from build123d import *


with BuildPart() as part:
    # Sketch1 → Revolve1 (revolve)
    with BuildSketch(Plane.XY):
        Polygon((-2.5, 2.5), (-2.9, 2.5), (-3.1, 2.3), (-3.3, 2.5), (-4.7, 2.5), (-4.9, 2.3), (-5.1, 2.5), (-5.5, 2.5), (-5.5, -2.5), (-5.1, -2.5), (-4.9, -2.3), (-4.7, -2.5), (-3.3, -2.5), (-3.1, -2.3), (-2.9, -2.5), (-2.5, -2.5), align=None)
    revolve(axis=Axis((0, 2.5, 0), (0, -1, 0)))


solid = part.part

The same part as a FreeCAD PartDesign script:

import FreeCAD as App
import Part
import Sketcher
Q = App.Units.Quantity

doc = App.newDocument("Part")
body = doc.addObject("PartDesign::Body", "Body")

# Sketch on XY plane
sketch1 = doc.addObject("Sketcher::SketchObject", "Sketch")
body.addObject(sketch1)
sketch1.AttachmentSupport = (doc.XY_Plane, [""])
sketch1.MapMode = "FlatFace"
sketch1.addGeometry(Part.LineSegment(App.Vector(-2.5, 2.5, 0), App.Vector(-2.9, 2.5, 0)), False)
sketch1.addGeometry(Part.LineSegment(App.Vector(-2.9, 2.5, 0), App.Vector(-3.1, 2.3, 0)), False)
sketch1.addGeometry(Part.LineSegment(App.Vector(-3.1, 2.3, 0), App.Vector(-3.3, 2.5, 0)), False)
sketch1.addGeometry(Part.LineSegment(App.Vector(-3.3, 2.5, 0), App.Vector(-4.7, 2.5, 0)), False)
sketch1.addGeometry(Part.LineSegment(App.Vector(-4.7, 2.5, 0), App.Vector(-4.9, 2.3, 0)), False)
sketch1.addGeometry(Part.LineSegment(App.Vector(-4.9, 2.3, 0), App.Vector(-5.1, 2.5, 0)), False)
sketch1.addGeometry(Part.LineSegment(App.Vector(-5.1, 2.5, 0), App.Vector(-5.5, 2.5, 0)), False)
sketch1.addGeometry(Part.LineSegment(App.Vector(-5.5, 2.5, 0), App.Vector(-5.5, -2.5, 0)), False)
sketch1.addGeometry(Part.LineSegment(App.Vector(-5.5, -2.5, 0), App.Vector(-5.1, -2.5, 0)), False)
sketch1.addGeometry(Part.LineSegment(App.Vector(-5.1, -2.5, 0), App.Vector(-4.9, -2.3, 0)), False)
sketch1.addGeometry(Part.LineSegment(App.Vector(-4.9, -2.3, 0), App.Vector(-4.7, -2.5, 0)), False)
sketch1.addGeometry(Part.LineSegment(App.Vector(-4.7, -2.5, 0), App.Vector(-3.3, -2.5, 0)), False)
sketch1.addGeometry(Part.LineSegment(App.Vector(-3.3, -2.5, 0), App.Vector(-3.1, -2.3, 0)), False)
sketch1.addGeometry(Part.LineSegment(App.Vector(-3.1, -2.3, 0), App.Vector(-2.9, -2.5, 0)), False)
sketch1.addGeometry(Part.LineSegment(App.Vector(-2.9, -2.5, 0), App.Vector(-2.5, -2.5, 0)), False)
sketch1.addGeometry(Part.LineSegment(App.Vector(-2.5, -2.5, 0), App.Vector(-2.5, 2.5, 0)), False)
sketch1.addConstraint(Sketcher.Constraint("Coincident", 0, 2, 1, 1))
sketch1.addConstraint(Sketcher.Constraint("Coincident", 1, 2, 2, 1))
sketch1.addConstraint(Sketcher.Constraint("Coincident", 2, 2, 3, 1))
sketch1.addConstraint(Sketcher.Constraint("Coincident", 3, 2, 4, 1))
sketch1.addConstraint(Sketcher.Constraint("Coincident", 4, 2, 5, 1))
sketch1.addConstraint(Sketcher.Constraint("Coincident", 5, 2, 6, 1))
sketch1.addConstraint(Sketcher.Constraint("Coincident", 6, 2, 7, 1))
sketch1.addConstraint(Sketcher.Constraint("Coincident", 7, 2, 8, 1))
sketch1.addConstraint(Sketcher.Constraint("Coincident", 8, 2, 9, 1))
sketch1.addConstraint(Sketcher.Constraint("Coincident", 9, 2, 10, 1))
sketch1.addConstraint(Sketcher.Constraint("Coincident", 10, 2, 11, 1))
sketch1.addConstraint(Sketcher.Constraint("Coincident", 11, 2, 12, 1))
sketch1.addConstraint(Sketcher.Constraint("Coincident", 12, 2, 13, 1))
sketch1.addConstraint(Sketcher.Constraint("Coincident", 13, 2, 14, 1))
sketch1.addConstraint(Sketcher.Constraint("Coincident", 14, 2, 15, 1))
sketch1.addConstraint(Sketcher.Constraint("Coincident", 15, 2, 0, 1))
sketch1.addConstraint(Sketcher.Constraint("Horizontal", 0))
sketch1.addConstraint(Sketcher.Constraint("Horizontal", 3))
sketch1.addConstraint(Sketcher.Constraint("Horizontal", 6))
sketch1.addConstraint(Sketcher.Constraint("Vertical", 7))
sketch1.addConstraint(Sketcher.Constraint("Horizontal", 8))
sketch1.addConstraint(Sketcher.Constraint("Horizontal", 11))
sketch1.addConstraint(Sketcher.Constraint("Horizontal", 14))
sketch1.addConstraint(Sketcher.Constraint("Vertical", 15))
sketch1.addConstraint(Sketcher.Constraint("Symmetric", 5, 2, 8, 2, -1))
sketch1.addConstraint(Sketcher.Constraint("Symmetric", 4, 2, 9, 2, -1))
sketch1.addConstraint(Sketcher.Constraint("Symmetric", 3, 2, 10, 2, -1))
sketch1.addConstraint(Sketcher.Constraint("Symmetric", 1, 2, 12, 2, -1))
sketch1.addConstraint(Sketcher.Constraint("Symmetric", 0, 2, 13, 2, -1))
sketch1.addConstraint(Sketcher.Constraint("Perpendicular", 1, 2))
sketch1.addConstraint(Sketcher.Constraint("Perpendicular", 2, 4))
sketch1.addConstraint(Sketcher.Constraint("Perpendicular", 4, 5))
sketch1.addConstraint(Sketcher.Constraint("Perpendicular", 5, 9))
sketch1.addConstraint(Sketcher.Constraint("Perpendicular", 10, 12))
sketch1.addConstraint(Sketcher.Constraint("Horizontal", 0, 2, 2, 2))
sketch1.addConstraint(Sketcher.Constraint("Horizontal", 1, 2, 4, 2))
sketch1.addConstraint(Sketcher.Constraint("Horizontal", 3, 2, 5, 2))
sketch1.addConstraint(Sketcher.Constraint("Equal", 0, 6))
sketch1.addConstraint(Sketcher.Constraint("DistanceY", 7, 2, 7, 1, Q("5 mm")))
sketch1.addConstraint(Sketcher.Constraint("DistanceX", 0, 2, 0, 1, Q("0.4 mm")))
sketch1.addConstraint(Sketcher.Constraint("DistanceX", 3, 2, 3, 1, Q("1.4 mm")))
sketch1.addConstraint(Sketcher.Constraint("DistanceX", 4, 2, 0, 2, Q("2 mm")))
sketch1.addConstraint(Sketcher.Constraint("DistanceX", 0, 2, -1, 1, Q("2.9 mm")))
revolution = doc.addObject("PartDesign::Revolution", "Revolution")
body.addObject(revolution)
revolution.Profile = sketch1
revolution.ReferenceAxis = (sketch1, ["V_Axis"])
revolution.Angle = 360

doc.recompute()
